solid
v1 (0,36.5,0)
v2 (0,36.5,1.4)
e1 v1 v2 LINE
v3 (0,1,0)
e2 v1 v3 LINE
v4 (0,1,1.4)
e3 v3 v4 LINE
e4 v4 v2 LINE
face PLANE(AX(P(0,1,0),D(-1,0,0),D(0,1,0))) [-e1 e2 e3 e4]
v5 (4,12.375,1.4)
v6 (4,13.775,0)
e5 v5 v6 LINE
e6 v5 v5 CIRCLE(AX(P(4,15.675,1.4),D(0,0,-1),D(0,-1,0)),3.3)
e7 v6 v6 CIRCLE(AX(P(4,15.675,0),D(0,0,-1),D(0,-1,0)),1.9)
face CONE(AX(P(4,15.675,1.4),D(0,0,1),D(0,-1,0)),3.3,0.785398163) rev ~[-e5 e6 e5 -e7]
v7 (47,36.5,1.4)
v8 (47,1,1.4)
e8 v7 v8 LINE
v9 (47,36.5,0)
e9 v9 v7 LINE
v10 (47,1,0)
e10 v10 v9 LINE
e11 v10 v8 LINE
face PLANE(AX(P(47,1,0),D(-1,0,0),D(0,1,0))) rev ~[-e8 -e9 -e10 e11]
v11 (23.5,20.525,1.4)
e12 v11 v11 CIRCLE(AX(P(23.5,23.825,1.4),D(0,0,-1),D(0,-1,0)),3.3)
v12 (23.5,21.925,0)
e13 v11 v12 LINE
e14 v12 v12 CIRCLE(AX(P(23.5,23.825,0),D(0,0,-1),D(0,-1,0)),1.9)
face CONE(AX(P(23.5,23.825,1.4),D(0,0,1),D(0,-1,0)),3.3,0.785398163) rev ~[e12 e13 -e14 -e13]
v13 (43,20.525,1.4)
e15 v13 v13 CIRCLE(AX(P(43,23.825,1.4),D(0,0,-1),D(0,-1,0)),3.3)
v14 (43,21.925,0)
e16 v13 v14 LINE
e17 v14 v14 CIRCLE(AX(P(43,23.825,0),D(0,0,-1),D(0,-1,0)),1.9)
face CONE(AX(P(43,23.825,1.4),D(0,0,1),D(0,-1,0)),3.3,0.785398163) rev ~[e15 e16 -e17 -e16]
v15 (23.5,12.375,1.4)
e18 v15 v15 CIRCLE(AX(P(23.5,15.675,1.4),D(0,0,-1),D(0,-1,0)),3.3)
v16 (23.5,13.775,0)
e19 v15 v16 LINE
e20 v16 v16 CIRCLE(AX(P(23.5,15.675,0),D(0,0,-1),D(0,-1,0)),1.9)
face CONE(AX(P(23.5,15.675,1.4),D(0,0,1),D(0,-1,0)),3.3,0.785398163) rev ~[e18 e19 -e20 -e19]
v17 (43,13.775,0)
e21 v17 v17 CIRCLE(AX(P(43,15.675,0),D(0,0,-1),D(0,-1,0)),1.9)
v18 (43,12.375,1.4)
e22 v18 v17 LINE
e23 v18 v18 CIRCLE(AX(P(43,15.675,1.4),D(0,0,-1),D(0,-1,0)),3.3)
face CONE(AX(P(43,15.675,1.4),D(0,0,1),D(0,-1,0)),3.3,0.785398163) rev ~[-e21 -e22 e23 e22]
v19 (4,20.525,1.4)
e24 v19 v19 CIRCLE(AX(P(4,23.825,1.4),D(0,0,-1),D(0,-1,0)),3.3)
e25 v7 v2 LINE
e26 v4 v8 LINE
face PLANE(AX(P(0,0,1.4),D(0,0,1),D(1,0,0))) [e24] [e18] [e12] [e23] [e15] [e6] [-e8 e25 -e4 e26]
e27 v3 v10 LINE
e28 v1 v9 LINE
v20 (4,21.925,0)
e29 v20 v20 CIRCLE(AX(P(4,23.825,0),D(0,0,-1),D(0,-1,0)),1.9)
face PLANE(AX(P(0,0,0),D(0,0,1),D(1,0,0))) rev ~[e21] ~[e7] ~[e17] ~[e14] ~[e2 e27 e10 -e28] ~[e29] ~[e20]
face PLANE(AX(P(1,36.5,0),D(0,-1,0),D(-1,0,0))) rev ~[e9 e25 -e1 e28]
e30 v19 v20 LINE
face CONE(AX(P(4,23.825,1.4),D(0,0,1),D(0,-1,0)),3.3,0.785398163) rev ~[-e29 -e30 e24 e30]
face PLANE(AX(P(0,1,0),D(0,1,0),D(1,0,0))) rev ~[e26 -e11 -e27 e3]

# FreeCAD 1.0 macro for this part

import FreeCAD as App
import Part
import Sketcher
Q = App.Units.Quantity


def add_polygon(sketch, points):
    """Adds a closed chain of lines whose ends are joined by coincident constraints."""
    first, n = sketch.GeometryCount, len(points)
    for a, b in zip(points, points[1:] + points[:1]):
        sketch.addGeometry(Part.LineSegment(App.Vector(*a, 0), App.Vector(*b, 0)), False)
    for i in range(n):
        sketch.addConstraint(Sketcher.Constraint("Coincident", first + i, 2, first + (i + 1) % n, 1))

doc = App.newDocument("Part")
body = doc.addObject("PartDesign::Body", "Body")

sketch1 = doc.addObject("Sketcher::SketchObject", "Sketch")
body.addObject(sketch1)
sketch1.AttachmentSupport = (doc.XY_Plane, [""])
sketch1.MapMode = "FlatFace"
add_polygon(sketch1, [(0, 1), (47, 1), (47, 36.5), (0, 36.5)])
sketch1.addConstraint([
    Sketcher.Constraint("Horizontal", 0),
    Sketcher.Constraint("Vertical", 1),
    Sketcher.Constraint("Horizontal", 2),
    Sketcher.Constraint("Vertical", 3),
    Sketcher.Constraint("PointOnObject", 2, 2, -2),
    Sketcher.Constraint("DistanceX", 0, 1, 0, 2, Q("47 mm")),
    Sketcher.Constraint("DistanceY", 1, 1, 1, 2, Q("35.5 mm")),
    Sketcher.Constraint("DistanceY", -1, 1, 0, 2, Q("1 mm")),
])
pad1 = doc.addObject("PartDesign::Pad", "Pad")
body.addObject(pad1)
pad1.Profile = sketch1
pad1.Length = 1.4

sketch2 = doc.addObject("Sketcher::SketchObject", "Sketch001")
body.addObject(sketch2)
sketch2.AttachmentSupport = (doc.XY_Plane, [""])
sketch2.MapMode = "FlatFace"
sketch2.AttachmentOffset = App.Placement(App.Vector(0, 0, 1.4), App.Rotation())
sketch2.addGeometry([
    Part.Circle(App.Vector(4, 23.825, 0), App.Vector(0, 0, 1), 1.8),
    Part.Circle(App.Vector(4, 15.675, 0), App.Vector(0, 0, 1), 1.8),
    Part.Circle(App.Vector(23.5, 15.675, 0), App.Vector(0, 0, 1), 1.8),
    Part.Circle(App.Vector(23.5, 23.825, 0), App.Vector(0, 0, 1), 1.8),
    Part.Circle(App.Vector(43, 23.825, 0), App.Vector(0, 0, 1), 1.8),
    Part.Circle(App.Vector(43, 15.675, 0), App.Vector(0, 0, 1), 1.8),
], False)
sketch2.addConstraint([
    Sketcher.Constraint("Equal", 0, 1),
    Sketcher.Constraint("Equal", 1, 2),
    Sketcher.Constraint("Equal", 2, 3),
    Sketcher.Constraint("Equal", 3, 4),
    Sketcher.Constraint("Equal", 4, 5),
    Sketcher.Constraint("Horizontal", 1, 3, 2, 3),
    Sketcher.Constraint("Horizontal", 0, 3, 3, 3),
    Sketcher.Constraint("Horizontal", 3, 3, 4, 3),
    Sketcher.Constraint("Horizontal", 2, 3, 5, 3),
    Sketcher.Constraint("Vertical", 0, 3, 1, 3),
    Sketcher.Constraint("Vertical", 2, 3, 3, 3),
    Sketcher.Constraint("Vertical", 4, 3, 5, 3),
    Sketcher.Constraint("Diameter", 0, Q("3.6 mm")),
    Sketcher.Constraint("DistanceX", -1, 1, 0, 3, Q("4 mm")),
    Sketcher.Constraint("DistanceX", -1, 1, 4, 3, Q("43 mm")),
    Sketcher.Constraint("DistanceX", -1, 1, 2, 3, Q("23.5 mm")),
    Sketcher.Constraint("DistanceY", 1, 3, 0, 3, Q("8.15 mm")),
    Sketcher.Constraint("DistanceY", -1, 1, 0, 3, Q("23.825 mm")),
])
doc.recompute()
hole = doc.addObject("PartDesign::Hole", "Hole")
body.addObject(hole)
hole.Profile = sketch2
hole.ThreadType = "None"
hole.Diameter = 3.6
hole.DepthType = "ThroughAll"
hole.HoleCutType = "Countersink"
hole.HoleCutDiameter = 6.6
hole.HoleCutCountersinkAngle = 90

doc.recompute()
